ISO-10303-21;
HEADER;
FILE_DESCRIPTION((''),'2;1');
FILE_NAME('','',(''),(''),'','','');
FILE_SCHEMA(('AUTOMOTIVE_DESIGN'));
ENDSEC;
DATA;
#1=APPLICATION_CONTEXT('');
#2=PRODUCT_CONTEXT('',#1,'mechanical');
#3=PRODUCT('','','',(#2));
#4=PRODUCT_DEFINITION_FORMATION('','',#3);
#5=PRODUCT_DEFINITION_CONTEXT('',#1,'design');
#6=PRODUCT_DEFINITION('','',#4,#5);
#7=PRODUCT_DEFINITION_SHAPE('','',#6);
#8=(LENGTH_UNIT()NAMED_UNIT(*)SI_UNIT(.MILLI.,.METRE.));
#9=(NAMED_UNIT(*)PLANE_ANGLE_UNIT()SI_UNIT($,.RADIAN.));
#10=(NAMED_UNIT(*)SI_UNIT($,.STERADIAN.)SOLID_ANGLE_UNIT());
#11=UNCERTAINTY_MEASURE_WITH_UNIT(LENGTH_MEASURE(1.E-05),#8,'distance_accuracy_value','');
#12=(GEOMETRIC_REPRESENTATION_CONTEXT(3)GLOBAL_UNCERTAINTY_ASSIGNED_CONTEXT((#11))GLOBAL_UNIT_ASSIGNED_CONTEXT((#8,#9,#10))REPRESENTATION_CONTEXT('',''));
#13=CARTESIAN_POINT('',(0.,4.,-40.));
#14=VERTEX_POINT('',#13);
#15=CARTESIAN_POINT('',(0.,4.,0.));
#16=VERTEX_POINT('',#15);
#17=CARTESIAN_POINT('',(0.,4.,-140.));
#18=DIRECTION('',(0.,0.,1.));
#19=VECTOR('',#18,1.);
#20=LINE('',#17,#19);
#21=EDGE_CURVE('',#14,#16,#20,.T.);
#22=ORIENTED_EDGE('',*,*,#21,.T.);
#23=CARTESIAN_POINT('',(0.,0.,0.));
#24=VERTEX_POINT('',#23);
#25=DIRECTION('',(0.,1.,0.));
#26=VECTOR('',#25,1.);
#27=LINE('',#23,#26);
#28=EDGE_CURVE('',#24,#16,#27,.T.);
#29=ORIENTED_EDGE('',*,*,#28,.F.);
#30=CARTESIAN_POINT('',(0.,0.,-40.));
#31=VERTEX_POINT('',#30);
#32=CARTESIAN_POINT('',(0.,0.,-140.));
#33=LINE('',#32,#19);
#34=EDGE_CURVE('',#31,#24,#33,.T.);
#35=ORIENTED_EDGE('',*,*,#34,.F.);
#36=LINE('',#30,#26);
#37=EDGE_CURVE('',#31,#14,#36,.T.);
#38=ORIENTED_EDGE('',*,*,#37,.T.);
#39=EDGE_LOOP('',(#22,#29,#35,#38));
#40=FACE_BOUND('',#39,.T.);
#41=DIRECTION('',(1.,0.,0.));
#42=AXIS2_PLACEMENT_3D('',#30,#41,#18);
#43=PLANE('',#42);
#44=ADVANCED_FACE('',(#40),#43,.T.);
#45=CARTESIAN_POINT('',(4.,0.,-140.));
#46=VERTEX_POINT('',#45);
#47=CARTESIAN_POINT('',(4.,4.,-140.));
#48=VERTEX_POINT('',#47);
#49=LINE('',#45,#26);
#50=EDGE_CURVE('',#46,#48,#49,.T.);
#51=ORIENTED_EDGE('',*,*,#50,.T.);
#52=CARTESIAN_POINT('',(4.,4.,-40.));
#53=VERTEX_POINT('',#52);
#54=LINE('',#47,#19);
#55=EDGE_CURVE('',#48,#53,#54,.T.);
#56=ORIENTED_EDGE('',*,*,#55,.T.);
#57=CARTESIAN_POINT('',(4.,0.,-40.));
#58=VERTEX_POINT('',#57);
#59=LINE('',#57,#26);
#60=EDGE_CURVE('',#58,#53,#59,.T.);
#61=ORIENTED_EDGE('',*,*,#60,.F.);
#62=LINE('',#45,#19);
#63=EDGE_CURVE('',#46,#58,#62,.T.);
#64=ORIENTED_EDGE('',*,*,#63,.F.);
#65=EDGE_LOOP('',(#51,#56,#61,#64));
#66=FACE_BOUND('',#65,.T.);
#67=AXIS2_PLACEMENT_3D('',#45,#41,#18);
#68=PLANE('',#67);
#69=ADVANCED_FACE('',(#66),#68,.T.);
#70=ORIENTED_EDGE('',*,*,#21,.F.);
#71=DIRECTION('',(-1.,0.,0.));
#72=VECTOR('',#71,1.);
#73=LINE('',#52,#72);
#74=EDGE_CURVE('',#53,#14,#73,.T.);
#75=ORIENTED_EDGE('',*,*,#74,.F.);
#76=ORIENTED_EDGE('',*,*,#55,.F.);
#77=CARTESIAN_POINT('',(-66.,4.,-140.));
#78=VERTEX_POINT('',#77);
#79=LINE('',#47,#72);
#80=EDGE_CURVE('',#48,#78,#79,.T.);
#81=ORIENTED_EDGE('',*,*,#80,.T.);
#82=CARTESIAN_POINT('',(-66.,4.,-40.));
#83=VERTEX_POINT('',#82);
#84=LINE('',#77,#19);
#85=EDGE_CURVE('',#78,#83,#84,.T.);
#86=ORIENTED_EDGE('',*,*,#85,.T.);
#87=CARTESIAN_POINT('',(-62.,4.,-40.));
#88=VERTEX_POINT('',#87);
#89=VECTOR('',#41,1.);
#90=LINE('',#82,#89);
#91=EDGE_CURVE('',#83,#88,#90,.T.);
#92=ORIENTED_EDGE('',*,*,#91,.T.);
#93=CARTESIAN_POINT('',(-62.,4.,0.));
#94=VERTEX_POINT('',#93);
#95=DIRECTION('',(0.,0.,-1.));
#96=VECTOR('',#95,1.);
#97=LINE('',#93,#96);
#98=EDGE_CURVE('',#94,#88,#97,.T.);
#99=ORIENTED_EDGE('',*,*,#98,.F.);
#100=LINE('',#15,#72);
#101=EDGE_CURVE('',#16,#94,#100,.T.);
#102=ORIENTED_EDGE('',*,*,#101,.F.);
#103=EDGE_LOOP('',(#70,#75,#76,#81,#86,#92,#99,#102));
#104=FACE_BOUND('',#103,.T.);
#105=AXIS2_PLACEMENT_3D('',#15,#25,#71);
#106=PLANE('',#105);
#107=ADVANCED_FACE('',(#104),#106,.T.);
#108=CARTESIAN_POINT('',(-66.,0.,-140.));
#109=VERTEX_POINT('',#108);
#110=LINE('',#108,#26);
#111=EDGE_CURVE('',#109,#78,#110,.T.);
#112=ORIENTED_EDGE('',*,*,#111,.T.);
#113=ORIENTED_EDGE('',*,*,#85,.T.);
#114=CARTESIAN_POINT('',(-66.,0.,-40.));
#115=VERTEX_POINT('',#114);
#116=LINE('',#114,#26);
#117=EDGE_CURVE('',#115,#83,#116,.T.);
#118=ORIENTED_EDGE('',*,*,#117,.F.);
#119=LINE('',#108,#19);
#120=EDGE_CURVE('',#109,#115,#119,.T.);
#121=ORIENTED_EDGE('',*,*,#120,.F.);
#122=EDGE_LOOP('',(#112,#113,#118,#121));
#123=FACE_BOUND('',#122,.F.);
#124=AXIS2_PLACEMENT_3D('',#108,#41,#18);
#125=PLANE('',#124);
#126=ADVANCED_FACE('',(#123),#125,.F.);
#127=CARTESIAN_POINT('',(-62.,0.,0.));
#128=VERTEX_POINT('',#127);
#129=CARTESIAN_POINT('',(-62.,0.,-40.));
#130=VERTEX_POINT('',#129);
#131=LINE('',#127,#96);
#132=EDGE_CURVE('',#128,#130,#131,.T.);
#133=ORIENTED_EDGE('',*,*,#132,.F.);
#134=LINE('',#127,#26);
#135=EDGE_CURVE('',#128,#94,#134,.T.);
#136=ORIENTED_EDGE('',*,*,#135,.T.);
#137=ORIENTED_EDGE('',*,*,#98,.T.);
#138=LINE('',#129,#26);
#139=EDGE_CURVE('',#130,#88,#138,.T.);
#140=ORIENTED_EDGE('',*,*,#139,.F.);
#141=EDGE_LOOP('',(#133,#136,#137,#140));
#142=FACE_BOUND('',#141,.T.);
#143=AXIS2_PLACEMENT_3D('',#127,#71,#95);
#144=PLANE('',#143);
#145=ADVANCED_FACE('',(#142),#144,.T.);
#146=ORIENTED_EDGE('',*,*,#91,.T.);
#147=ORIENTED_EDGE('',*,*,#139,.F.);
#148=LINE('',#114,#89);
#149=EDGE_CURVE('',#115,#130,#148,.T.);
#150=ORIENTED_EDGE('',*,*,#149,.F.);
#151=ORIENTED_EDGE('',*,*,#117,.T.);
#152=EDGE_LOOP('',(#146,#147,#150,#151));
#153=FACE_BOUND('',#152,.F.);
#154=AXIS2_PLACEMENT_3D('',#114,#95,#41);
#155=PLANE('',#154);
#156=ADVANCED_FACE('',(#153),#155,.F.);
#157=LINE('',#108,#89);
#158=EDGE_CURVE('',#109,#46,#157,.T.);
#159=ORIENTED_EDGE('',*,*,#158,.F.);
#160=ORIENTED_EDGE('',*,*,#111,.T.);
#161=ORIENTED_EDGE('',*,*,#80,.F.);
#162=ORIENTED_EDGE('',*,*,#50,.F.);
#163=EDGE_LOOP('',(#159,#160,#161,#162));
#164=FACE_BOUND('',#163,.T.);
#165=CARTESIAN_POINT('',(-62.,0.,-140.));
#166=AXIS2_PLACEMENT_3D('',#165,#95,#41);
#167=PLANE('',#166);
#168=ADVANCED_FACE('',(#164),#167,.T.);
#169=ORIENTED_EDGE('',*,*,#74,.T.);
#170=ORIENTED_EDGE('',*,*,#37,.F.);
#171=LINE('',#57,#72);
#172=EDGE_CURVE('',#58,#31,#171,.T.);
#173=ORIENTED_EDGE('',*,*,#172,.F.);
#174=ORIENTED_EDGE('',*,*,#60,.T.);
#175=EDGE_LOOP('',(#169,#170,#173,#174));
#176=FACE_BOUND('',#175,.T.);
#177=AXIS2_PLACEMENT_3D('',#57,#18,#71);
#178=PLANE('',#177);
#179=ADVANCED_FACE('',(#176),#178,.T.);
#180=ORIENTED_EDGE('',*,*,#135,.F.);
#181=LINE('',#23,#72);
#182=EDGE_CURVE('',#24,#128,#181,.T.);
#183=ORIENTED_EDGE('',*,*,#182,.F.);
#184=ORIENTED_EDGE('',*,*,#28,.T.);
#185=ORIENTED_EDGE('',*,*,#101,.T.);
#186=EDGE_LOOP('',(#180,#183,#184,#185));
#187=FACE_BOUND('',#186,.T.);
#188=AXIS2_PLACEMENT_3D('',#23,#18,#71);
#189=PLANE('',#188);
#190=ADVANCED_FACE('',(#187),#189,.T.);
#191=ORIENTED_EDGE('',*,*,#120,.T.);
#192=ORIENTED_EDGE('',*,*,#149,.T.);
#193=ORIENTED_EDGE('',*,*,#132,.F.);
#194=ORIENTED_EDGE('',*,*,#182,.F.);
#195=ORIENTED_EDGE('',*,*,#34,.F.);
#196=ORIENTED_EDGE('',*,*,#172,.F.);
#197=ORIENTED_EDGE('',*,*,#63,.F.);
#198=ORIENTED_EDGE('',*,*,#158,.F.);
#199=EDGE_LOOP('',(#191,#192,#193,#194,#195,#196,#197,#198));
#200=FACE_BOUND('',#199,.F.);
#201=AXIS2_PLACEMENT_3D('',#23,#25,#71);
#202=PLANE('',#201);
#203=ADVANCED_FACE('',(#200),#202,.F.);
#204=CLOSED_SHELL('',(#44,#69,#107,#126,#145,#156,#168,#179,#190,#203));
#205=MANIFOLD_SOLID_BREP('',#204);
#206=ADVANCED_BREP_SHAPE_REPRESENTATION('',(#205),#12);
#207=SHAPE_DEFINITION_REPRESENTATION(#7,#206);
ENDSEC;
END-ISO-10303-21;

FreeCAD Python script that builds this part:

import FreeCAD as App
import Part
import Sketcher
Q = App.Units.Quantity

doc = App.newDocument("Part")
params = doc.addObject("Spreadsheet::Sheet", "Params")
for row, (alias, value) in enumerate([
    ("sketch1_width", "62 mm"),
    ("sketch1_width2", "4 mm"),
    ("sketch1_height", "100 mm"),
    ("pad1_length", "4 mm"),
], start=1):
    params.set(f"A{row}", alias)
    params.set(f"B{row}", "=" + value)
    params.setAlias(f"B{row}", alias)

body = doc.addObject("PartDesign::Body", "Body")

sketch1 = doc.addObject("Sketcher::SketchObject", "Sketch")
body.addObject(sketch1)
sketch1.AttachmentSupport = (doc.XZ_Plane, [""])
sketch1.MapMode = "FlatFace"
sketch1.addGeometry([
    Part.LineSegment(App.Vector(-62, 0, 0), App.Vector(0, 0, 0)),
    Part.LineSegment(App.Vector(0, 0, 0), App.Vector(0, -40, 0)),
    Part.LineSegment(App.Vector(0, -40, 0), App.Vector(4, -40, 0)),
    Part.LineSegment(App.Vector(4, -40, 0), App.Vector(4, -140, 0)),
    Part.LineSegment(App.Vector(4, -140, 0), App.Vector(-66, -140, 0)),
    Part.LineSegment(App.Vector(-66, -140, 0), App.Vector(-66, -40, 0)),
    Part.LineSegment(App.Vector(-66, -40, 0), App.Vector(-62, -40, 0)),
    Part.LineSegment(App.Vector(-62, -40, 0), App.Vector(-62, 0, 0)),
], False)
sketch1.addConstraint([
    Sketcher.Constraint("Coincident", 0, 2, 1, 1),
    Sketcher.Constraint("Coincident", 1, 2, 2, 1),
    Sketcher.Constraint("Coincident", 2, 2, 3, 1),
    Sketcher.Constraint("Coincident", 3, 2, 4, 1),
    Sketcher.Constraint("Coincident", 4, 2, 5, 1),
    Sketcher.Constraint("Coincident", 5, 2, 6, 1),
    Sketcher.Constraint("Coincident", 6, 2, 7, 1),
    Sketcher.Constraint("Coincident", 7, 2, 0, 1),
    Sketcher.Constraint("Horizontal", 0),
    Sketcher.Constraint("Vertical", 1),
    Sketcher.Constraint("Horizontal", 2),
    Sketcher.Constraint("Vertical", 3),
    Sketcher.Constraint("Horizontal", 4),
    Sketcher.Constraint("Vertical", 5),
    Sketcher.Constraint("Horizontal", 6),
    Sketcher.Constraint("Vertical", 7),
    Sketcher.Constraint("Coincident", 0, 2, -1, 1),
    Sketcher.Constraint("Horizontal", 2, 2, 5, 2),
    Sketcher.Constraint("Equal", 2, 6),
    Sketcher.Constraint("DistanceX", 0, 1, 0, 2, Q("62 mm")),
    Sketcher.Constraint("DistanceX", 2, 1, 2, 2, Q("4 mm")),
    Sketcher.Constraint("DistanceY", 3, 2, 3, 1, Q("100 mm")),
    Sketcher.Constraint("DistanceY", 3, 2, -1, 1, Q("140 mm")),
])
sketch1.setExpression("Constraints[19]", "Params.sketch1_width")
sketch1.setExpression("Constraints[20]", "Params.sketch1_width2")
sketch1.setExpression("Constraints[21]", "Params.sketch1_height")
pad1 = doc.addObject("PartDesign::Pad", "Pad")
body.addObject(pad1)
pad1.Profile = sketch1
pad1.setExpression("Length", "Params.pad1_length")
pad1.Reversed = True

doc.recompute()
